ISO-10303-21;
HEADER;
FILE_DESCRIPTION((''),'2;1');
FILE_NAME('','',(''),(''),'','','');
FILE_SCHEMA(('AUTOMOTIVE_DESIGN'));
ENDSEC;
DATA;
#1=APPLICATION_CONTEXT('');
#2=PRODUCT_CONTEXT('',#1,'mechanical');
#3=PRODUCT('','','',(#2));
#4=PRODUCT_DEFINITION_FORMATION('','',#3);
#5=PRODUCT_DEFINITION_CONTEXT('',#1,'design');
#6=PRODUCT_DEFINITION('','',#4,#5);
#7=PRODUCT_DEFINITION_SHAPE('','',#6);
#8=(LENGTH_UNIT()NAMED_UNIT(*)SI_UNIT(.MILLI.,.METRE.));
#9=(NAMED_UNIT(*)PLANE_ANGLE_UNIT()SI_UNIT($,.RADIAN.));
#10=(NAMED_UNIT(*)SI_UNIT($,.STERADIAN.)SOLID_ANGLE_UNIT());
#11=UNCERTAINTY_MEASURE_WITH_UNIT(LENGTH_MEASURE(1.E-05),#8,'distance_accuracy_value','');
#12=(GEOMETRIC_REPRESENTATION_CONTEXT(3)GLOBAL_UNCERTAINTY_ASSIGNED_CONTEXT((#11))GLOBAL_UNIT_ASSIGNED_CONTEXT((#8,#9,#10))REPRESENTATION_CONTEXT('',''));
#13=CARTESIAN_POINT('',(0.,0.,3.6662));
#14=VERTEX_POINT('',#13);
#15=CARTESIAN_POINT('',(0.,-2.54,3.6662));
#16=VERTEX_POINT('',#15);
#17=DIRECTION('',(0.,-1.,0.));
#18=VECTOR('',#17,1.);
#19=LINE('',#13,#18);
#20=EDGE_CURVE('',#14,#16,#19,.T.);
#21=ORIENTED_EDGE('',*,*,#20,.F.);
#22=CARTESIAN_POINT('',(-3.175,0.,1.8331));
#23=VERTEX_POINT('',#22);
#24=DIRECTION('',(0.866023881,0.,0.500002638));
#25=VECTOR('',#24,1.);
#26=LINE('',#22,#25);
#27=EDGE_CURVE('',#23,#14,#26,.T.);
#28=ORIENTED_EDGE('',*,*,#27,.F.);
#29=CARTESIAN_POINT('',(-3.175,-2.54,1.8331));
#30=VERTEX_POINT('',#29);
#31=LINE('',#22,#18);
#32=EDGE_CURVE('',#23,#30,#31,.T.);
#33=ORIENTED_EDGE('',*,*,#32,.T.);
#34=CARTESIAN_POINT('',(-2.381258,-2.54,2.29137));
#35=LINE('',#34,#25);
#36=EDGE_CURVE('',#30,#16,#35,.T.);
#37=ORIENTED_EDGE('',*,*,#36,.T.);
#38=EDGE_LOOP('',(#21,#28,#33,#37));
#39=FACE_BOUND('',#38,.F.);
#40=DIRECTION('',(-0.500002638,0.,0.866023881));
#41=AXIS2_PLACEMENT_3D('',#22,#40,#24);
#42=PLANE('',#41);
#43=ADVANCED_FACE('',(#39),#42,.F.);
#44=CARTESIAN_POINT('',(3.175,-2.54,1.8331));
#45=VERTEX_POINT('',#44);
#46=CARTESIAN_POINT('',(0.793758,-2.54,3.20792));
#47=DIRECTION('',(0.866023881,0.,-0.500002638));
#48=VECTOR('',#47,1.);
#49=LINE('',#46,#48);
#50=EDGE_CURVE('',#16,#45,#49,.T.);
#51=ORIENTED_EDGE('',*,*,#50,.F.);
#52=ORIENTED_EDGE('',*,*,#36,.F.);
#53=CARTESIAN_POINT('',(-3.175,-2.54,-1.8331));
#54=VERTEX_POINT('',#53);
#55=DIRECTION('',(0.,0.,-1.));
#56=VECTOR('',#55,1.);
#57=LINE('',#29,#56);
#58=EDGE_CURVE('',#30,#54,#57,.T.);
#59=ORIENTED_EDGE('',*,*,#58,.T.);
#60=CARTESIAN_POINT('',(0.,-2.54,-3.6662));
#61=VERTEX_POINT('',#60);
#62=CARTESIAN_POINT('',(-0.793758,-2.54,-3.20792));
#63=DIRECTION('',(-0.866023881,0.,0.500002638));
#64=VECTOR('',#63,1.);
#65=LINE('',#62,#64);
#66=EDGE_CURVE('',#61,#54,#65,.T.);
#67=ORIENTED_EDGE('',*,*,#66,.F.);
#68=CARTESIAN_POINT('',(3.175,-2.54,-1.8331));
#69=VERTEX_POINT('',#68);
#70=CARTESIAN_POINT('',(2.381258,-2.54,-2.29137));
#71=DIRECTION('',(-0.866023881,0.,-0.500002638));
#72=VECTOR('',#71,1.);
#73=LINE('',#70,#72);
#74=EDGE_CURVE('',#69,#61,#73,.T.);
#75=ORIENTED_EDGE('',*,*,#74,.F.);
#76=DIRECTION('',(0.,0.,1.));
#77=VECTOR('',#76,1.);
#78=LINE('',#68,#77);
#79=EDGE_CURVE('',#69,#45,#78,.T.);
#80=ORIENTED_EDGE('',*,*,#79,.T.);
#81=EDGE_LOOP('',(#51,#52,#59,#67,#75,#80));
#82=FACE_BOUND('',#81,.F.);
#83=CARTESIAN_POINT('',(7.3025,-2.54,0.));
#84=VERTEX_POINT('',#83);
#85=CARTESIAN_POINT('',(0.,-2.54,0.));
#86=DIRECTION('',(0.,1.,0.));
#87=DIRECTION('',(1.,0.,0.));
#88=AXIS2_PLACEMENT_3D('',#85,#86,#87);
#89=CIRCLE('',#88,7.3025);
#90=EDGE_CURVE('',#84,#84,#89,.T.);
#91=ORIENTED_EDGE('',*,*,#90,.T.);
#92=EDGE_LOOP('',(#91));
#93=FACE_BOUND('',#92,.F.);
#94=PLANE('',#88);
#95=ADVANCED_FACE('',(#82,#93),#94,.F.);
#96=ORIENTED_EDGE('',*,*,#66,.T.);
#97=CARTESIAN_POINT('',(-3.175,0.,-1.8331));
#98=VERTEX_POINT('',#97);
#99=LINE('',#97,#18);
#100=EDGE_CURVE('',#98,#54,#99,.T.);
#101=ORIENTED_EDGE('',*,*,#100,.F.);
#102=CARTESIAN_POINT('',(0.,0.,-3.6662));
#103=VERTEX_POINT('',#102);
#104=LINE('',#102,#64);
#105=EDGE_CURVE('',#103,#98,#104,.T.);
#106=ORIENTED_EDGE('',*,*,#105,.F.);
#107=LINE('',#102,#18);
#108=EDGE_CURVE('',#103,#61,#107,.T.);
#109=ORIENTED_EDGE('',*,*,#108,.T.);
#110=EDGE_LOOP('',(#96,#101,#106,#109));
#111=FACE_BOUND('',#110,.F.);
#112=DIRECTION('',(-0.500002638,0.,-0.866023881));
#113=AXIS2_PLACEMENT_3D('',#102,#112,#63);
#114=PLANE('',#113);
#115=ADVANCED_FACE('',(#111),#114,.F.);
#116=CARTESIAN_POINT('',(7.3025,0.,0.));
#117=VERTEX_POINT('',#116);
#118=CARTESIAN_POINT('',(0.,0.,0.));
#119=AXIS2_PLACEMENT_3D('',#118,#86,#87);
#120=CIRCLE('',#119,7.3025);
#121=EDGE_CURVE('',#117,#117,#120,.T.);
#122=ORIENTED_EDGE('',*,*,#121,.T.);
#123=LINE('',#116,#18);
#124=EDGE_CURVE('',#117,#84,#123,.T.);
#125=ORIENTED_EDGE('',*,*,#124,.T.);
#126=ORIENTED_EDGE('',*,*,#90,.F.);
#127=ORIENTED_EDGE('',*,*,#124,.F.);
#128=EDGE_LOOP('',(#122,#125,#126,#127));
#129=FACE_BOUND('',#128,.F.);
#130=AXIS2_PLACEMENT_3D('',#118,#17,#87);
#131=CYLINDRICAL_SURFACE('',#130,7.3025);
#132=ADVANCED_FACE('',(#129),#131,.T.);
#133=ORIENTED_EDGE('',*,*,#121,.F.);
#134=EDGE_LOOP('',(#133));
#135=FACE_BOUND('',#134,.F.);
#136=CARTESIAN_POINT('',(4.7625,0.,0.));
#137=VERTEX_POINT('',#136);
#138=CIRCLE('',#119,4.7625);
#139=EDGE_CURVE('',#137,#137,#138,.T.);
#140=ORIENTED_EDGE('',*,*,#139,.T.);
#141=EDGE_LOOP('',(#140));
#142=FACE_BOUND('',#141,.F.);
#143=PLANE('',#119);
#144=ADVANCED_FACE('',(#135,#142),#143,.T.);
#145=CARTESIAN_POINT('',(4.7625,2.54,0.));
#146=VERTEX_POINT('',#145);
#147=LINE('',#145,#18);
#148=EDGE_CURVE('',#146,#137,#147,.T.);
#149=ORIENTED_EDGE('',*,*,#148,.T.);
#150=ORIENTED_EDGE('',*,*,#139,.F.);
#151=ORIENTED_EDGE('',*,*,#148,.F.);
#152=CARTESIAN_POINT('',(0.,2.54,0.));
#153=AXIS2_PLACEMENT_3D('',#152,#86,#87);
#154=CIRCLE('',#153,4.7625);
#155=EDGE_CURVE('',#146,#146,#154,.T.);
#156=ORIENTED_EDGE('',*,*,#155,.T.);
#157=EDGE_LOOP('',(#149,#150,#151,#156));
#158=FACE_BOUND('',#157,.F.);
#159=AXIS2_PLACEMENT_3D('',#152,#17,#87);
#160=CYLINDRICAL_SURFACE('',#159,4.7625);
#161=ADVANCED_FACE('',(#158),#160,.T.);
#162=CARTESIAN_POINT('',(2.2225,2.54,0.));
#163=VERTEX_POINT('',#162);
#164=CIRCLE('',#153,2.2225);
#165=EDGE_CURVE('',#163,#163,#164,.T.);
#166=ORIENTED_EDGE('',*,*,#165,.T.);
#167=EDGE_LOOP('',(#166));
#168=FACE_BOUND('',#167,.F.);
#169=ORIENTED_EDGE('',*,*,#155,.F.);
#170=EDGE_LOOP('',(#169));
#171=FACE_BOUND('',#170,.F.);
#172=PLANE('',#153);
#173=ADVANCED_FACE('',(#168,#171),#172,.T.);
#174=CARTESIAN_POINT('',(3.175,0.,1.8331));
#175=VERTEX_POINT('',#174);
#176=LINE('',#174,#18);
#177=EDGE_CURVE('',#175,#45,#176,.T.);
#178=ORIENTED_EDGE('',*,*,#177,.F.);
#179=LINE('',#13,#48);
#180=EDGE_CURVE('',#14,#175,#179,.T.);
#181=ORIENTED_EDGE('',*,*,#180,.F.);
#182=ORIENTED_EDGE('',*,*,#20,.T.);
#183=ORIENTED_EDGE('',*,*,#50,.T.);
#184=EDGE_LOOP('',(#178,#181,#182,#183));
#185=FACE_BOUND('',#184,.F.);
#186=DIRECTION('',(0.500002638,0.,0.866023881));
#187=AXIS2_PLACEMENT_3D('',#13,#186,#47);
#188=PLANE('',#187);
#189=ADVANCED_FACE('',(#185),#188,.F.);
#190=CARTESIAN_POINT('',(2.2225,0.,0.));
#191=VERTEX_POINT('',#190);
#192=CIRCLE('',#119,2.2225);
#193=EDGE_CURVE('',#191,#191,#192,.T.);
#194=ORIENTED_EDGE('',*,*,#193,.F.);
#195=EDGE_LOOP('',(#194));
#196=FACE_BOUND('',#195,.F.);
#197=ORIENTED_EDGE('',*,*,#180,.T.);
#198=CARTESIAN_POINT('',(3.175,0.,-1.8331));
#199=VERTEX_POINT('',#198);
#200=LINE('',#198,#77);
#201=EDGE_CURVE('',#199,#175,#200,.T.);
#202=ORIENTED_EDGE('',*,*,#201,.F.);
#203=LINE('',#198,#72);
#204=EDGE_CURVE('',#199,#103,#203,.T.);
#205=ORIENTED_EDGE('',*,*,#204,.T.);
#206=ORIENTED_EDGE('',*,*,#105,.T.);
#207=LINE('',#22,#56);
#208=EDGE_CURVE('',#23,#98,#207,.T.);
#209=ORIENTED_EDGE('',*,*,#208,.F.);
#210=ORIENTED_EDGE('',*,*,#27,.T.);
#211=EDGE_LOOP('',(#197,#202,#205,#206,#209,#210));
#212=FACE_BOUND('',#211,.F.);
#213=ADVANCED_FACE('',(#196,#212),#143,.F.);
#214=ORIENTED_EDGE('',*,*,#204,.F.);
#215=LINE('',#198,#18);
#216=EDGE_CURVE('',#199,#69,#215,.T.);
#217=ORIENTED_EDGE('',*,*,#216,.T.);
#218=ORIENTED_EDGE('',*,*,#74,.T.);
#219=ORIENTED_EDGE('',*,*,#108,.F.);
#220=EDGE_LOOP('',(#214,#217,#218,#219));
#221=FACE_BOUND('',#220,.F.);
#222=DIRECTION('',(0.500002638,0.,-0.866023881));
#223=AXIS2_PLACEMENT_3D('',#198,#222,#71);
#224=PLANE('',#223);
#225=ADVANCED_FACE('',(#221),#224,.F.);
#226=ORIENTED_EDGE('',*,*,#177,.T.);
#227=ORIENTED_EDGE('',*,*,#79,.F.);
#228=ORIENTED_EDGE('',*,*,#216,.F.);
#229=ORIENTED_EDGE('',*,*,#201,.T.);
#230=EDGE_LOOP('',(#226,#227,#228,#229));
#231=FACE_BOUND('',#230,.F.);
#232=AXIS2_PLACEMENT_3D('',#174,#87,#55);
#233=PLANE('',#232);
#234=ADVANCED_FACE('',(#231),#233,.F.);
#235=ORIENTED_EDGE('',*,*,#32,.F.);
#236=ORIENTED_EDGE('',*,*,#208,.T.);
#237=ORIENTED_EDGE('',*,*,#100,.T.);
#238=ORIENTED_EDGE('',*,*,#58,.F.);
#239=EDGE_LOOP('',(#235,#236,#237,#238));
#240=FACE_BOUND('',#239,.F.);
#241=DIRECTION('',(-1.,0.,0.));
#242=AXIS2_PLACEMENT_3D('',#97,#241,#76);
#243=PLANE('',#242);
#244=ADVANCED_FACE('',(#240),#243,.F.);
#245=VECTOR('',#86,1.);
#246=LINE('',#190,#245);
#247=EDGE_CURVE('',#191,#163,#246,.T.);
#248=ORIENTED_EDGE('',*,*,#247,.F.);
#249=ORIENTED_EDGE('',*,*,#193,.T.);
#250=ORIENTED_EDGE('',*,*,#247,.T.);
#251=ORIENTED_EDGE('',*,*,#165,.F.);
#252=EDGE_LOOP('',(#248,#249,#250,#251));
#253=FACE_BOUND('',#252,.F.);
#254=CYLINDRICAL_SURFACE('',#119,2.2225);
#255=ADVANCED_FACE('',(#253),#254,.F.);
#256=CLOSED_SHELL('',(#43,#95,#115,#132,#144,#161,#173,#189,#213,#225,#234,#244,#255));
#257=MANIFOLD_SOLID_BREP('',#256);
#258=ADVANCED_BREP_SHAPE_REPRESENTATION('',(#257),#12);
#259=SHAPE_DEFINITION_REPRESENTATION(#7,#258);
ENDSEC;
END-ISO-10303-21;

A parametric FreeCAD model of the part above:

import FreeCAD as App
import Part
import Sketcher
from FreeCAD import Vector
Q = App.Units.Quantity

doc = App.newDocument("Part")
body = doc.addObject("PartDesign::Body", "Body")

sketch1 = doc.addObject("Sketcher::SketchObject", "Sketch")
body.addObject(sketch1)
sketch1.AttachmentSupport = (doc.XY_Plane, [""])
sketch1.MapMode = "FlatFace"
sketch1.addGeometry([
    Part.LineSegment(Vector(2.2, 2.5, 0), Vector(2.2, 0, 0)),
    Part.LineSegment(Vector(2.2, 0, 0), Vector(3.2, 0, 0)),
    Part.LineSegment(Vector(3.2, 0, 0), Vector(3.2, -2.5, 0)),
    Part.LineSegment(Vector(3.2, -2.5, 0), Vector(7.3, -2.5, 0)),
    Part.LineSegment(Vector(7.3, -2.5, 0), Vector(7.3, 0, 0)),
    Part.LineSegment(Vector(7.3, 0, 0), Vector(4.8, 0, 0)),
    Part.LineSegment(Vector(4.8, 0, 0), Vector(4.8, 2.5, 0)),
    Part.LineSegment(Vector(4.8, 2.5, 0), Vector(2.2, 2.5, 0)),
], False)
sketch1.addConstraint([
    Sketcher.Constraint("Coincident", 0, 2, 1, 1),
    Sketcher.Constraint("Coincident", 1, 2, 2, 1),
    Sketcher.Constraint("Coincident", 2, 2, 3, 1),
    Sketcher.Constraint("Coincident", 3, 2, 4, 1),
    Sketcher.Constraint("Coincident", 4, 2, 5, 1),
    Sketcher.Constraint("Coincident", 5, 2, 6, 1),
    Sketcher.Constraint("Coincident", 6, 2, 7, 1),
    Sketcher.Constraint("Coincident", 7, 2, 0, 1),
    Sketcher.Constraint("Vertical", 0),
    Sketcher.Constraint("Horizontal", 1),
    Sketcher.Constraint("Vertical", 2),
    Sketcher.Constraint("Horizontal", 3),
    Sketcher.Constraint("Vertical", 4),
    Sketcher.Constraint("Horizontal", 5),
    Sketcher.Constraint("Vertical", 6),
    Sketcher.Constraint("Horizontal", 7),
    Sketcher.Constraint("PointOnObject", 0, 2, -1),
    Sketcher.Constraint("PointOnObject", 4, 2, -1),
    Sketcher.Constraint("Equal", 5, 7),
    Sketcher.Constraint("Equal", 7, 0),
    Sketcher.Constraint("Equal", 0, 2),
    Sketcher.Constraint("DistanceX", 5, 2, 5, 1, Q("0.1 in")),
    Sketcher.Constraint("DistanceX", -1, 1, 1, 2, Q("0.125 in")),
    Sketcher.Constraint("DistanceX", -1, 1, 5, 2, Q("0.1875 in")),
])
revolution = doc.addObject("PartDesign::Revolution", "Revolution")
body.addObject(revolution)
revolution.Profile = sketch1
revolution.ReferenceAxis = (sketch1, ["V_Axis"])
revolution.Angle = 360

sketch2 = doc.addObject("Sketcher::SketchObject", "Sketch001")
body.addObject(sketch2)
sketch2.AttachmentSupport = (doc.XZ_Plane, [""])
sketch2.MapMode = "FlatFace"
sketch2.addGeometry([
    Part.LineSegment(Vector(3.2, 1.8, 0), Vector(0, 3.7, 0)),
    Part.LineSegment(Vector(0, 3.7, 0), Vector(-3.2, 1.8, 0)),
    Part.LineSegment(Vector(-3.2, 1.8, 0), Vector(-3.2, -1.8, 0)),
    Part.LineSegment(Vector(-3.2, -1.8, 0), Vector(0, -3.7, 0)),
    Part.LineSegment(Vector(0, -3.7, 0), Vector(3.2, -1.8, 0)),
    Part.LineSegment(Vector(3.2, -1.8, 0), Vector(3.2, 1.8, 0)),
], False)
sketch2.addConstraint([
    Sketcher.Constraint("Coincident", 0, 2, 1, 1),
    Sketcher.Constraint("Coincident", 1, 2, 2, 1),
    Sketcher.Constraint("Coincident", 2, 2, 3, 1),
    Sketcher.Constraint("Coincident", 3, 2, 4, 1),
    Sketcher.Constraint("Coincident", 4, 2, 5, 1),
    Sketcher.Constraint("Coincident", 5, 2, 0, 1),
    Sketcher.Constraint("Vertical", 2),
    Sketcher.Constraint("Vertical", 5),
    Sketcher.Constraint("Symmetric", 0, 2, 3, 2, -1, 1),
    Sketcher.Constraint("Symmetric", 1, 2, 4, 2, -1, 1),
    Sketcher.Constraint("PointOnObject", 0, 2, -2),
    Sketcher.Constraint("Parallel", 0, 3),
    Sketcher.Constraint("Horizontal", 2, 2, 4, 2),
    Sketcher.Constraint("DistanceX", 2, 2, 4, 2, Q("0.25 in")),
    Sketcher.Constraint("Angle", 0, Q("149.9998 deg")),
    Sketcher.Constraint("DistanceY", 2, 2, 2, 1, Q("3.6662 mm")),
])
pocket1 = doc.addObject("PartDesign::Pocket", "Pocket")
body.addObject(pocket1)
pocket1.Profile = sketch2
pocket1.Length = Q("1 in")
pocket1.Reversed = True

doc.recompute()
